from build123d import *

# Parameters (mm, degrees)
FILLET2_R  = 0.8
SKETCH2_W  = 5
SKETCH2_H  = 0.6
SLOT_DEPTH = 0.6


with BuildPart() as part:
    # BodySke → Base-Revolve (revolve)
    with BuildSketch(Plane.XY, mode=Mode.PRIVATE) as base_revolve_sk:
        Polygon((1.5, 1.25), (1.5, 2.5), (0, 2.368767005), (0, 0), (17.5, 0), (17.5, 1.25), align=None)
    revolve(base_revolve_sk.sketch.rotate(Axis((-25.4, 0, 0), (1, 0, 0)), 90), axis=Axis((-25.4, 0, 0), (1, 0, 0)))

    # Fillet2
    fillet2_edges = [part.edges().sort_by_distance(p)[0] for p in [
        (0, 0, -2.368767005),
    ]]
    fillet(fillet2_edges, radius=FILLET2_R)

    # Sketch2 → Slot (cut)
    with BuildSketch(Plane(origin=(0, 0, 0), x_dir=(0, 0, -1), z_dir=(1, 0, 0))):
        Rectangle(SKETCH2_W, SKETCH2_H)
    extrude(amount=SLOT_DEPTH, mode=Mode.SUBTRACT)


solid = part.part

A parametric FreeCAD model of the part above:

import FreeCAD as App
import Part
import Sketcher
Q = App.Units.Quantity


def edges_at(feature, points):
    """Names of the edges that pass closest to the given points."""
    edges = feature.Shape.Edges
    near = lambda p: min(range(len(edges)), key=lambda i: edges[i].distToShape(Part.Vertex(*p))[0])
    return sorted({f"Edge{near(p) + 1}" for p in points})


def add_polygon(sketch, points):
    """Adds a closed chain of lines whose ends are joined by coincident constraints."""
    first, n = sketch.GeometryCount, len(points)
    for a, b in zip(points, points[1:] + points[:1]):
        sketch.addGeometry(Part.LineSegment(App.Vector(*a, 0), App.Vector(*b, 0)), False)
    for i in range(n):
        sketch.addConstraint(Sketcher.Constraint("Coincident", first + i, 2, first + (i + 1) % n, 1))

doc = App.newDocument("Part")
params = doc.addObject("Spreadsheet::Sheet", "Params")
for row, (alias, value) in enumerate([
    ("sketch1_width", "16 mm"),
    ("sketch1_width2", "17.5 mm"),
    ("sketch1_height", "1.25 mm"),
    ("revolution_angle", "360 deg"),
    ("fillet_radius", "0.8 mm"),
    ("sketch2_height", "5 mm"),
    ("sketch2_width", "0.6 mm"),
    ("pocket1_length", "0.6 mm"),
], start=1):
    params.set(f"A{row}", alias)
    params.set(f"B{row}", "=" + value)
    params.setAlias(f"B{row}", alias)

body = doc.addObject("PartDesign::Body", "Body")

sketch1 = body.newObject("Sketcher::SketchObject", "Sketch")
sketch1.AttachmentSupport = (doc.getObject("XY_Plane"), [""])
sketch1.MapMode = "FlatFace"
add_polygon(sketch1, [(1.5, 1.2), (1.5, 2.5), (0, 2.4), (0, 0), (17.5, 0), (17.5, 1.2)])
sketch1.addConstraint([
    Sketcher.Constraint("Vertical", 0),
    Sketcher.Constraint("Vertical", 2),
    Sketcher.Constraint("Horizontal", 3),
    Sketcher.Constraint("Vertical", 4),
    Sketcher.Constraint("Horizontal", 5),
    Sketcher.Constraint("Coincident", 2, 2, -1, 1),
    Sketcher.Constraint("Equal", 0, 4),
    Sketcher.Constraint("DistanceX", 5, 2, 5, 1, 16.0),
    Sketcher.Constraint("Angle", 1, Q("-175 deg")),
    Sketcher.Constraint("DistanceX", 3, 1, 3, 2, 17.5),
    Sketcher.Constraint("DistanceY", 0, 1, 0, 2, 1.25),
])
sketch1.setExpression("Constraints[13]", "Params.sketch1_width")
sketch1.setExpression("Constraints[15]", "Params.sketch1_width2")
sketch1.setExpression("Constraints[16]", "Params.sketch1_height")
revolution = body.newObject("PartDesign::Revolution", "Revolution")
revolution.Profile = sketch1
revolution.ReferenceAxis = (sketch1, ["H_Axis"])
revolution.setExpression("Angle", "Params.revolution_angle")
doc.recompute()

fillet = body.newObject("PartDesign::Fillet", "Fillet")
fillet.Base = (revolution, edges_at(revolution, [(0, 0, -2.369)]))
fillet.setExpression("Radius", "Params.fillet_radius")

sketch2 = body.newObject("Sketcher::SketchObject", "Sketch001")
sketch2.AttachmentSupport = (doc.getObject("YZ_Plane"), [""])
sketch2.MapMode = "FlatFace"
add_polygon(sketch2, [(0.3, 2.5), (-0.3, 2.5), (-0.3, -2.5), (0.3, -2.5)])
sketch2.addConstraint([
    Sketcher.Constraint("Horizontal", 0),
    Sketcher.Constraint("Vertical", 1),
    Sketcher.Constraint("Horizontal", 2),
    Sketcher.Constraint("Vertical", 3),
    Sketcher.Constraint("Symmetric", 0, 2, 2, 2, -1, 1),
    Sketcher.Constraint("DistanceY", 1, 2, 1, 1, 5.0),
    Sketcher.Constraint("DistanceX", 0, 2, 0, 1, 0.6),
])
sketch2.setExpression("Constraints[9]", "Params.sketch2_height")
sketch2.setExpression("Constraints[10]", "Params.sketch2_width")
pocket1 = body.newObject("PartDesign::Pocket", "Pocket")
pocket1.Profile = sketch2
pocket1.setExpression("Length", "Params.pocket1_length")
pocket1.Reversed = True

doc.recompute()
